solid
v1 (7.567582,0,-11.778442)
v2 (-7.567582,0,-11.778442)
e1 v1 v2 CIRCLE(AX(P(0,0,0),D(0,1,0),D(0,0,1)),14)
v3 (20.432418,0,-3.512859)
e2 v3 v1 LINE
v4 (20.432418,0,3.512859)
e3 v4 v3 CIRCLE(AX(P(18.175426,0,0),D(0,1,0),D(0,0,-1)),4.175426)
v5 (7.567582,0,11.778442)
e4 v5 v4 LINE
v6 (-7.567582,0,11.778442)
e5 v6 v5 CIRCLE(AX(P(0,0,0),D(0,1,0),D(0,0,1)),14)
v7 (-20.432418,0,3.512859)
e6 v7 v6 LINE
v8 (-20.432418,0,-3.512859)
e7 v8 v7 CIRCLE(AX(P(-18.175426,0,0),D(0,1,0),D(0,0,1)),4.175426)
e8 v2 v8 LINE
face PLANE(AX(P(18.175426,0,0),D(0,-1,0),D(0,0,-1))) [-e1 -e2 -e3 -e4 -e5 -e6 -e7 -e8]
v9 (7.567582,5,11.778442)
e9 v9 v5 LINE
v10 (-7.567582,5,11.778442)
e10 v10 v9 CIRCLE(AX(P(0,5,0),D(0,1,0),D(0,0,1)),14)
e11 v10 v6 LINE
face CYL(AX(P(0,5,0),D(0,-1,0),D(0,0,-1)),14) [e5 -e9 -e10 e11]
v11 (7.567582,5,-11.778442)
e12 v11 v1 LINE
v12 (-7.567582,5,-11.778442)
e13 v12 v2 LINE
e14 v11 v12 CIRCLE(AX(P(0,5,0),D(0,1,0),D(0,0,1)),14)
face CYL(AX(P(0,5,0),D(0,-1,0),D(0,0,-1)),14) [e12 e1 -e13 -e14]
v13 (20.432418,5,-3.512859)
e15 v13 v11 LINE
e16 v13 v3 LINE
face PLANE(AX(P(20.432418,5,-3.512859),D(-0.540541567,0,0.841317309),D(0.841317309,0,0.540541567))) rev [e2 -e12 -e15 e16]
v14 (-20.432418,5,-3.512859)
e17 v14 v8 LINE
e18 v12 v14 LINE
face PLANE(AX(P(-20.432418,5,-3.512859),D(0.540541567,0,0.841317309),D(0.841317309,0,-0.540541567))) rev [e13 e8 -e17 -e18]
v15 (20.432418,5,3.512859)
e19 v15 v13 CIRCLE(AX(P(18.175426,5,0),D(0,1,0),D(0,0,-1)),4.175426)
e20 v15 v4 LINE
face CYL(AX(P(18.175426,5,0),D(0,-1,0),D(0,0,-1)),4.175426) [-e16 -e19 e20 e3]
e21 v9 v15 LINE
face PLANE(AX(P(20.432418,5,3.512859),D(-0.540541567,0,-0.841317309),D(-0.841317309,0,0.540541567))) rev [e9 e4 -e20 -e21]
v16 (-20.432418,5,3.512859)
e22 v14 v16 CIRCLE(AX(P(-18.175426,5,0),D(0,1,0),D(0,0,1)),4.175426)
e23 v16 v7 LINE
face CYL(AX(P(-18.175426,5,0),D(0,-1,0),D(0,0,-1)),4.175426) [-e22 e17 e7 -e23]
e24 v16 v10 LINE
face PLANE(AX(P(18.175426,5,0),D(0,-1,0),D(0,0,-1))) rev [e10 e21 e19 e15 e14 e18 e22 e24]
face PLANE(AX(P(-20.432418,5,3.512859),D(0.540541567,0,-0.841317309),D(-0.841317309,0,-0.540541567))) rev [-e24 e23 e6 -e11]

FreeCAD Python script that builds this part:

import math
import FreeCAD as App
import Part
import Sketcher
Q = App.Units.Quantity

doc = App.newDocument("Part")
params = doc.addObject("Spreadsheet::Sheet", "Params")
for row, (alias, value) in enumerate([
    ("sketch1_radius", "14 mm"),
    ("pad1_length", "5 mm"),
], start=1):
    params.set(f"A{row}", alias)
    params.set(f"B{row}", "=" + value)
    params.setAlias(f"B{row}", alias)

body = doc.addObject("PartDesign::Body", "Body")

# Sketch on XZ plane
sketch1 = body.newObject("Sketcher::SketchObject", "Sketch")
sketch1.AttachmentSupport = (doc.getObject("XZ_Plane"), [""])
sketch1.MapMode = "FlatFace"
sketch1.addGeometry(Part.LineSegment(App.Vector(-7.6, -11.8, 0), App.Vector(-20.4, -3.5, 0)), False)
sketch1.addGeometry(Part.ArcOfCircle(Part.Circle(App.Vector(-18.2, 0, 0), App.Vector(0, 0, 1), 4.2), math.radians(123), math.radians(237)), False)
sketch1.addGeometry(Part.LineSegment(App.Vector(-20.4, 3.5, 0), App.Vector(-7.6, 11.8, 0)), False)
sketch1.addGeometry(Part.ArcOfCircle(Part.Circle(App.Vector(0, 0, 0), App.Vector(0, 0, 1), 14), math.radians(57), math.radians(123)), False)
sketch1.addGeometry(Part.LineSegment(App.Vector(7.6, 11.8, 0), App.Vector(20.4, 3.5, 0)), False)
sketch1.addGeometry(Part.ArcOfCircle(Part.Circle(App.Vector(18.2, 0, 0), App.Vector(0, 0, 1), 4.2), math.radians(-57), math.radians(57)), False)
sketch1.addGeometry(Part.LineSegment(App.Vector(20.4, -3.5, 0), App.Vector(7.6, -11.8, 0)), False)
sketch1.addGeometry(Part.ArcOfCircle(Part.Circle(App.Vector(0, 0, 0), App.Vector(0, 0, 1), 14), math.radians(-123), math.radians(-57)), False)
sketch1.addConstraint(Sketcher.Constraint("Tangent", 0, 2, 1, 2))
sketch1.addConstraint(Sketcher.Constraint("Tangent", 1, 1, 2, 1))
sketch1.addConstraint(Sketcher.Constraint("Tangent", 2, 2, 3, 2))
sketch1.addConstraint(Sketcher.Constraint("Tangent", 3, 1, 4, 1))
sketch1.addConstraint(Sketcher.Constraint("Tangent", 4, 2, 5, 2))
sketch1.addConstraint(Sketcher.Constraint("Tangent", 5, 1, 6, 1))
sketch1.addConstraint(Sketcher.Constraint("Tangent", 6, 2, 7, 2))
sketch1.addConstraint(Sketcher.Constraint("Tangent", 7, 1, 0, 1))
sketch1.addConstraint(Sketcher.Constraint("Coincident", 3, 3, -1, 1))
sketch1.addConstraint(Sketcher.Constraint("Coincident", 7, 3, -1, 1))
sketch1.addConstraint(Sketcher.Constraint("Equal", 1, 5))
sketch1.addConstraint(Sketcher.Constraint("Equal", 3, 7))
sketch1.addConstraint(Sketcher.Constraint("Symmetric", 1, 3, 5, 3, -1, 1))
sketch1.addConstraint(Sketcher.Constraint("PointOnObject", 1, 3, -1))
sketch1.addConstraint(Sketcher.Constraint("Radius", 3, Q("14 mm")))
sketch1.addConstraint(Sketcher.Constraint("DistanceX", 2, 2, 4, 2, Q("28 mm")))
sketch1.addConstraint(Sketcher.Constraint("Radius", 1, Q("4.175426 mm")))
sketch1.setExpression("Constraints[14]", "Params.sketch1_radius")
pad1 = body.newObject("PartDesign::Pad", "Pad")
pad1.Profile = sketch1
pad1.setExpression("Length", "Params.pad1_length")
pad1.Reversed = True

doc.recompute()
